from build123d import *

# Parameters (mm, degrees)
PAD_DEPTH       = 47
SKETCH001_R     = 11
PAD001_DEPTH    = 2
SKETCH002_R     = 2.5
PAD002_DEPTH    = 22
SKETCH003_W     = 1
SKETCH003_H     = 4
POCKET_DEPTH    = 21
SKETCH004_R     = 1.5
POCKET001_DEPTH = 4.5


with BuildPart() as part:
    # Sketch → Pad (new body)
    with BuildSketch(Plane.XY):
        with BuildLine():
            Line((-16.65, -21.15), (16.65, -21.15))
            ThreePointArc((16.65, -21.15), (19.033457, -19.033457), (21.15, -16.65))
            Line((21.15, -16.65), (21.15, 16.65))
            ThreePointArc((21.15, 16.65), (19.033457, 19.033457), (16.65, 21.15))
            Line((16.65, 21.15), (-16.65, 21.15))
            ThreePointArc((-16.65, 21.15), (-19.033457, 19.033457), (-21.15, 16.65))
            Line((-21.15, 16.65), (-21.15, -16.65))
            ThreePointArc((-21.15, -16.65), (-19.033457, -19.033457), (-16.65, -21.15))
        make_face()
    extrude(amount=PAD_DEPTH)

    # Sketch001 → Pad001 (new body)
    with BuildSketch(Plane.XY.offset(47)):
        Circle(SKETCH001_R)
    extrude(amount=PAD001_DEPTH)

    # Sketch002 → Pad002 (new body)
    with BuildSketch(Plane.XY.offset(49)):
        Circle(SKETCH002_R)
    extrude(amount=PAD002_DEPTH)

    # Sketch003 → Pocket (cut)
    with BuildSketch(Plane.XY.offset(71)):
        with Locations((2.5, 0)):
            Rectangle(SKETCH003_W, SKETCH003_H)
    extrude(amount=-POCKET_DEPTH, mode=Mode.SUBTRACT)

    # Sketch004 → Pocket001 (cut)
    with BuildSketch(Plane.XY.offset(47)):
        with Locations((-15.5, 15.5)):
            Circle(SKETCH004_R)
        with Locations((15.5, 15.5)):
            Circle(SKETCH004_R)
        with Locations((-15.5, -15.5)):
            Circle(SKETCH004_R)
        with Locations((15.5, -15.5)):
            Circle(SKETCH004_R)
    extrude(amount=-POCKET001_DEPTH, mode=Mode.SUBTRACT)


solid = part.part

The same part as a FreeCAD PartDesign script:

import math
import FreeCAD as App
import Part
import Sketcher
from FreeCAD import Vector


def add_polygon(sketch, points):
    """Adds a closed chain of lines whose ends are joined by coincident constraints."""
    first, n = sketch.GeometryCount, len(points)
    for a, b in zip(points, points[1:] + points[:1]):
        sketch.addGeometry(Part.LineSegment(App.Vector(*a, 0), App.Vector(*b, 0)), False)
    for i in range(n):
        sketch.addConstraint(Sketcher.Constraint("Coincident", first + i, 2, first + (i + 1) % n, 1))

doc = App.newDocument("Part")
body = doc.addObject("PartDesign::Body", "Body")

# Sketch on XY plane
sketch1 = body.newObject("Sketcher::SketchObject", "Sketch")
sketch1.AttachmentSupport = (doc.getObject("XY_Plane"), [""])
sketch1.MapMode = "FlatFace"
sketch1.addGeometry(Part.LineSegment(Vector(-17, -21, 0), Vector(17, -21, 0)), False)
sketch1.addGeometry(Part.ArcOfCircle(Part.Circle(Vector(0, 0, 0), Vector(0, 0, 1), 27), math.radians(-51.79), math.radians(-38.21)), False)
sketch1.addGeometry(Part.LineSegment(Vector(21, -17, 0), Vector(21, 17, 0)), False)
sketch1.addGeometry(Part.ArcOfCircle(Part.Circle(Vector(0, 0, 0), Vector(0, 0, 1), 27), math.radians(38.21), math.radians(51.79)), False)
sketch1.addGeometry(Part.LineSegment(Vector(17, 21, 0), Vector(-17, 21, 0)), False)
sketch1.addGeometry(Part.ArcOfCircle(Part.Circle(Vector(0, 0, 0), Vector(0, 0, 1), 27), math.radians(128.21), math.radians(141.79)), False)
sketch1.addGeometry(Part.LineSegment(Vector(-21, 17, 0), Vector(-21, -17, 0)), False)
sketch1.addGeometry(Part.ArcOfCircle(Part.Circle(Vector(0, 0, 0), Vector(0, 0, 1), 27), math.radians(-141.79), math.radians(-128.21)), False)
sketch1.addConstraint(Sketcher.Constraint("Coincident", 0, 2, 1, 1))
sketch1.addConstraint(Sketcher.Constraint("Coincident", 1, 2, 2, 1))
sketch1.addConstraint(Sketcher.Constraint("Coincident", 2, 2, 3, 1))
sketch1.addConstraint(Sketcher.Constraint("Coincident", 3, 2, 4, 1))
sketch1.addConstraint(Sketcher.Constraint("Coincident", 4, 2, 5, 1))
sketch1.addConstraint(Sketcher.Constraint("Coincident", 5, 2, 6, 1))
sketch1.addConstraint(Sketcher.Constraint("Coincident", 6, 2, 7, 1))
sketch1.addConstraint(Sketcher.Constraint("Coincident", 7, 2, 0, 1))
sketch1.addConstraint(Sketcher.Constraint("Horizontal", 0))
sketch1.addConstraint(Sketcher.Constraint("Vertical", 2))
sketch1.addConstraint(Sketcher.Constraint("Horizontal", 4))
sketch1.addConstraint(Sketcher.Constraint("Vertical", 6))
sketch1.addConstraint(Sketcher.Constraint("Equal", 1, 3))
sketch1.addConstraint(Sketcher.Constraint("Equal", 3, 5))
sketch1.addConstraint(Sketcher.Constraint("Equal", 5, 7))
sketch1.addConstraint(Sketcher.Constraint("Symmetric", 1, 3, 5, 3, -1, 1))
sketch1.addConstraint(Sketcher.Constraint("Symmetric", 3, 3, 7, 3, -1, 1))
sketch1.addConstraint(Sketcher.Constraint("Symmetric", 3, 3, 5, 3, -2))
sketch1.addConstraint(Sketcher.Constraint("Horizontal", 2, 2, 5, 2))
sketch1.addConstraint(Sketcher.Constraint("Vertical", 0, 2, 3, 2))
sketch1.addConstraint(Sketcher.Constraint("Equal", 4, 2))
sketch1.addConstraint(Sketcher.Constraint("DistanceX", 0, 1, 0, 2, 33.3))
sketch1.addConstraint(Sketcher.Constraint("DistanceX", 0, 2, 1, 2, 4.5))
sketch1.addConstraint(Sketcher.Constraint("DistanceY", 0, 2, 1, 2, 4.5))
sketch1.addConstraint(Sketcher.Constraint("Radius", 1, 26.917451))
pad1 = body.newObject("PartDesign::Pad", "Pad")
pad1.Profile = sketch1
pad1.Length = 47

# Sketch on XY plane
sketch2 = body.newObject("Sketcher::SketchObject", "Sketch001")
sketch2.AttachmentSupport = (doc.getObject("XY_Plane"), [""])
sketch2.MapMode = "FlatFace"
sketch2.AttachmentOffset = App.Placement(Vector(0, 0, 47), App.Rotation())
sketch2.addGeometry(Part.Circle(Vector(0, 0, 0), Vector(0, 0, 1), 11), False)
sketch2.addConstraint(Sketcher.Constraint("Coincident", 0, 3, -1, 1))
sketch2.addConstraint(Sketcher.Constraint("Diameter", 0, 22.0))
pad2 = body.newObject("PartDesign::Pad", "Pad001")
pad2.Profile = sketch2
pad2.Length = 2

# Sketch on XY plane
sketch3 = body.newObject("Sketcher::SketchObject", "Sketch002")
sketch3.AttachmentSupport = (doc.getObject("XY_Plane"), [""])
sketch3.MapMode = "FlatFace"
sketch3.AttachmentOffset = App.Placement(Vector(0, 0, 49), App.Rotation())
sketch3.addGeometry(Part.Circle(Vector(0, 0, 0), Vector(0, 0, 1), 2.5), False)
sketch3.addConstraint(Sketcher.Constraint("Coincident", 0, 3, -1, 1))
sketch3.addConstraint(Sketcher.Constraint("Diameter", 0, 5.0))
pad3 = body.newObject("PartDesign::Pad", "Pad002")
pad3.Profile = sketch3
pad3.Length = 22

# Sketch on XY plane
sketch4 = body.newObject("Sketcher::SketchObject", "Sketch003")
sketch4.AttachmentSupport = (doc.getObject("XY_Plane"), [""])
sketch4.MapMode = "FlatFace"
sketch4.AttachmentOffset = App.Placement(Vector(0, 0, 71), App.Rotation())
add_polygon(sketch4, [(2, 2), (2, -2), (3, -2), (3, 2)])  # lines 0-3
sketch4.addConstraint(Sketcher.Constraint("Vertical", 0))
sketch4.addConstraint(Sketcher.Constraint("Horizontal", 1))
sketch4.addConstraint(Sketcher.Constraint("Vertical", 2))
sketch4.addConstraint(Sketcher.Constraint("Horizontal", 3))
sketch4.addConstraint(Sketcher.Constraint("DistanceX", 1, 1, 1, 2, 1.0))
sketch4.addConstraint(Sketcher.Constraint("DistanceY", 0, 2, 0, 1, 4.0))
sketch4.addConstraint(Sketcher.Constraint("DistanceX", -1, 1, 0, 2, 2.0))
sketch4.addConstraint(Sketcher.Constraint("DistanceY", 0, 2, -1, 1, 2.0))
pocket1 = body.newObject("PartDesign::Pocket", "Pocket")
pocket1.Profile = sketch4
pocket1.Length = 21

# Sketch on XY plane
sketch5 = body.newObject("Sketcher::SketchObject", "Sketch004")
sketch5.AttachmentSupport = (doc.getObject("XY_Plane"), [""])
sketch5.MapMode = "FlatFace"
sketch5.AttachmentOffset = App.Placement(Vector(0, 0, 47), App.Rotation())
sketch5.addGeometry(Part.Circle(Vector(-15.5, 15.5, 0), Vector(0, 0, 1), 1.5), False)
sketch5.addGeometry(Part.Circle(Vector(15.5, 15.5, 0), Vector(0, 0, 1), 1.5), False)
sketch5.addGeometry(Part.Circle(Vector(-15.5, -15.5, 0), Vector(0, 0, 1), 1.5), False)
sketch5.addGeometry(Part.Circle(Vector(15.5, -15.5, 0), Vector(0, 0, 1), 1.5), False)
sketch5.addConstraint(Sketcher.Constraint("Equal", 0, 1))
sketch5.addConstraint(Sketcher.Constraint("Equal", 1, 2))
sketch5.addConstraint(Sketcher.Constraint("Equal", 2, 3))
sketch5.addConstraint(Sketcher.Constraint("Symmetric", 1, 3, 2, 3, -1, 1))
sketch5.addConstraint(Sketcher.Constraint("Symmetric", 0, 3, 3, 3, -1, 1))
sketch5.addConstraint(Sketcher.Constraint("Symmetric", 0, 3, 1, 3, -2))
sketch5.addConstraint(Sketcher.Constraint("Diameter", 0, 3.0))
sketch5.addConstraint(Sketcher.Constraint("DistanceX", 0, 3, 1, 3, 31.0))
sketch5.addConstraint(Sketcher.Constraint("DistanceY", 2, 3, 0, 3, 31.0))
pocket2 = body.newObject("PartDesign::Pocket", "Pocket001")
pocket2.Profile = sketch5
pocket2.Length = 4.5

doc.recompute()
